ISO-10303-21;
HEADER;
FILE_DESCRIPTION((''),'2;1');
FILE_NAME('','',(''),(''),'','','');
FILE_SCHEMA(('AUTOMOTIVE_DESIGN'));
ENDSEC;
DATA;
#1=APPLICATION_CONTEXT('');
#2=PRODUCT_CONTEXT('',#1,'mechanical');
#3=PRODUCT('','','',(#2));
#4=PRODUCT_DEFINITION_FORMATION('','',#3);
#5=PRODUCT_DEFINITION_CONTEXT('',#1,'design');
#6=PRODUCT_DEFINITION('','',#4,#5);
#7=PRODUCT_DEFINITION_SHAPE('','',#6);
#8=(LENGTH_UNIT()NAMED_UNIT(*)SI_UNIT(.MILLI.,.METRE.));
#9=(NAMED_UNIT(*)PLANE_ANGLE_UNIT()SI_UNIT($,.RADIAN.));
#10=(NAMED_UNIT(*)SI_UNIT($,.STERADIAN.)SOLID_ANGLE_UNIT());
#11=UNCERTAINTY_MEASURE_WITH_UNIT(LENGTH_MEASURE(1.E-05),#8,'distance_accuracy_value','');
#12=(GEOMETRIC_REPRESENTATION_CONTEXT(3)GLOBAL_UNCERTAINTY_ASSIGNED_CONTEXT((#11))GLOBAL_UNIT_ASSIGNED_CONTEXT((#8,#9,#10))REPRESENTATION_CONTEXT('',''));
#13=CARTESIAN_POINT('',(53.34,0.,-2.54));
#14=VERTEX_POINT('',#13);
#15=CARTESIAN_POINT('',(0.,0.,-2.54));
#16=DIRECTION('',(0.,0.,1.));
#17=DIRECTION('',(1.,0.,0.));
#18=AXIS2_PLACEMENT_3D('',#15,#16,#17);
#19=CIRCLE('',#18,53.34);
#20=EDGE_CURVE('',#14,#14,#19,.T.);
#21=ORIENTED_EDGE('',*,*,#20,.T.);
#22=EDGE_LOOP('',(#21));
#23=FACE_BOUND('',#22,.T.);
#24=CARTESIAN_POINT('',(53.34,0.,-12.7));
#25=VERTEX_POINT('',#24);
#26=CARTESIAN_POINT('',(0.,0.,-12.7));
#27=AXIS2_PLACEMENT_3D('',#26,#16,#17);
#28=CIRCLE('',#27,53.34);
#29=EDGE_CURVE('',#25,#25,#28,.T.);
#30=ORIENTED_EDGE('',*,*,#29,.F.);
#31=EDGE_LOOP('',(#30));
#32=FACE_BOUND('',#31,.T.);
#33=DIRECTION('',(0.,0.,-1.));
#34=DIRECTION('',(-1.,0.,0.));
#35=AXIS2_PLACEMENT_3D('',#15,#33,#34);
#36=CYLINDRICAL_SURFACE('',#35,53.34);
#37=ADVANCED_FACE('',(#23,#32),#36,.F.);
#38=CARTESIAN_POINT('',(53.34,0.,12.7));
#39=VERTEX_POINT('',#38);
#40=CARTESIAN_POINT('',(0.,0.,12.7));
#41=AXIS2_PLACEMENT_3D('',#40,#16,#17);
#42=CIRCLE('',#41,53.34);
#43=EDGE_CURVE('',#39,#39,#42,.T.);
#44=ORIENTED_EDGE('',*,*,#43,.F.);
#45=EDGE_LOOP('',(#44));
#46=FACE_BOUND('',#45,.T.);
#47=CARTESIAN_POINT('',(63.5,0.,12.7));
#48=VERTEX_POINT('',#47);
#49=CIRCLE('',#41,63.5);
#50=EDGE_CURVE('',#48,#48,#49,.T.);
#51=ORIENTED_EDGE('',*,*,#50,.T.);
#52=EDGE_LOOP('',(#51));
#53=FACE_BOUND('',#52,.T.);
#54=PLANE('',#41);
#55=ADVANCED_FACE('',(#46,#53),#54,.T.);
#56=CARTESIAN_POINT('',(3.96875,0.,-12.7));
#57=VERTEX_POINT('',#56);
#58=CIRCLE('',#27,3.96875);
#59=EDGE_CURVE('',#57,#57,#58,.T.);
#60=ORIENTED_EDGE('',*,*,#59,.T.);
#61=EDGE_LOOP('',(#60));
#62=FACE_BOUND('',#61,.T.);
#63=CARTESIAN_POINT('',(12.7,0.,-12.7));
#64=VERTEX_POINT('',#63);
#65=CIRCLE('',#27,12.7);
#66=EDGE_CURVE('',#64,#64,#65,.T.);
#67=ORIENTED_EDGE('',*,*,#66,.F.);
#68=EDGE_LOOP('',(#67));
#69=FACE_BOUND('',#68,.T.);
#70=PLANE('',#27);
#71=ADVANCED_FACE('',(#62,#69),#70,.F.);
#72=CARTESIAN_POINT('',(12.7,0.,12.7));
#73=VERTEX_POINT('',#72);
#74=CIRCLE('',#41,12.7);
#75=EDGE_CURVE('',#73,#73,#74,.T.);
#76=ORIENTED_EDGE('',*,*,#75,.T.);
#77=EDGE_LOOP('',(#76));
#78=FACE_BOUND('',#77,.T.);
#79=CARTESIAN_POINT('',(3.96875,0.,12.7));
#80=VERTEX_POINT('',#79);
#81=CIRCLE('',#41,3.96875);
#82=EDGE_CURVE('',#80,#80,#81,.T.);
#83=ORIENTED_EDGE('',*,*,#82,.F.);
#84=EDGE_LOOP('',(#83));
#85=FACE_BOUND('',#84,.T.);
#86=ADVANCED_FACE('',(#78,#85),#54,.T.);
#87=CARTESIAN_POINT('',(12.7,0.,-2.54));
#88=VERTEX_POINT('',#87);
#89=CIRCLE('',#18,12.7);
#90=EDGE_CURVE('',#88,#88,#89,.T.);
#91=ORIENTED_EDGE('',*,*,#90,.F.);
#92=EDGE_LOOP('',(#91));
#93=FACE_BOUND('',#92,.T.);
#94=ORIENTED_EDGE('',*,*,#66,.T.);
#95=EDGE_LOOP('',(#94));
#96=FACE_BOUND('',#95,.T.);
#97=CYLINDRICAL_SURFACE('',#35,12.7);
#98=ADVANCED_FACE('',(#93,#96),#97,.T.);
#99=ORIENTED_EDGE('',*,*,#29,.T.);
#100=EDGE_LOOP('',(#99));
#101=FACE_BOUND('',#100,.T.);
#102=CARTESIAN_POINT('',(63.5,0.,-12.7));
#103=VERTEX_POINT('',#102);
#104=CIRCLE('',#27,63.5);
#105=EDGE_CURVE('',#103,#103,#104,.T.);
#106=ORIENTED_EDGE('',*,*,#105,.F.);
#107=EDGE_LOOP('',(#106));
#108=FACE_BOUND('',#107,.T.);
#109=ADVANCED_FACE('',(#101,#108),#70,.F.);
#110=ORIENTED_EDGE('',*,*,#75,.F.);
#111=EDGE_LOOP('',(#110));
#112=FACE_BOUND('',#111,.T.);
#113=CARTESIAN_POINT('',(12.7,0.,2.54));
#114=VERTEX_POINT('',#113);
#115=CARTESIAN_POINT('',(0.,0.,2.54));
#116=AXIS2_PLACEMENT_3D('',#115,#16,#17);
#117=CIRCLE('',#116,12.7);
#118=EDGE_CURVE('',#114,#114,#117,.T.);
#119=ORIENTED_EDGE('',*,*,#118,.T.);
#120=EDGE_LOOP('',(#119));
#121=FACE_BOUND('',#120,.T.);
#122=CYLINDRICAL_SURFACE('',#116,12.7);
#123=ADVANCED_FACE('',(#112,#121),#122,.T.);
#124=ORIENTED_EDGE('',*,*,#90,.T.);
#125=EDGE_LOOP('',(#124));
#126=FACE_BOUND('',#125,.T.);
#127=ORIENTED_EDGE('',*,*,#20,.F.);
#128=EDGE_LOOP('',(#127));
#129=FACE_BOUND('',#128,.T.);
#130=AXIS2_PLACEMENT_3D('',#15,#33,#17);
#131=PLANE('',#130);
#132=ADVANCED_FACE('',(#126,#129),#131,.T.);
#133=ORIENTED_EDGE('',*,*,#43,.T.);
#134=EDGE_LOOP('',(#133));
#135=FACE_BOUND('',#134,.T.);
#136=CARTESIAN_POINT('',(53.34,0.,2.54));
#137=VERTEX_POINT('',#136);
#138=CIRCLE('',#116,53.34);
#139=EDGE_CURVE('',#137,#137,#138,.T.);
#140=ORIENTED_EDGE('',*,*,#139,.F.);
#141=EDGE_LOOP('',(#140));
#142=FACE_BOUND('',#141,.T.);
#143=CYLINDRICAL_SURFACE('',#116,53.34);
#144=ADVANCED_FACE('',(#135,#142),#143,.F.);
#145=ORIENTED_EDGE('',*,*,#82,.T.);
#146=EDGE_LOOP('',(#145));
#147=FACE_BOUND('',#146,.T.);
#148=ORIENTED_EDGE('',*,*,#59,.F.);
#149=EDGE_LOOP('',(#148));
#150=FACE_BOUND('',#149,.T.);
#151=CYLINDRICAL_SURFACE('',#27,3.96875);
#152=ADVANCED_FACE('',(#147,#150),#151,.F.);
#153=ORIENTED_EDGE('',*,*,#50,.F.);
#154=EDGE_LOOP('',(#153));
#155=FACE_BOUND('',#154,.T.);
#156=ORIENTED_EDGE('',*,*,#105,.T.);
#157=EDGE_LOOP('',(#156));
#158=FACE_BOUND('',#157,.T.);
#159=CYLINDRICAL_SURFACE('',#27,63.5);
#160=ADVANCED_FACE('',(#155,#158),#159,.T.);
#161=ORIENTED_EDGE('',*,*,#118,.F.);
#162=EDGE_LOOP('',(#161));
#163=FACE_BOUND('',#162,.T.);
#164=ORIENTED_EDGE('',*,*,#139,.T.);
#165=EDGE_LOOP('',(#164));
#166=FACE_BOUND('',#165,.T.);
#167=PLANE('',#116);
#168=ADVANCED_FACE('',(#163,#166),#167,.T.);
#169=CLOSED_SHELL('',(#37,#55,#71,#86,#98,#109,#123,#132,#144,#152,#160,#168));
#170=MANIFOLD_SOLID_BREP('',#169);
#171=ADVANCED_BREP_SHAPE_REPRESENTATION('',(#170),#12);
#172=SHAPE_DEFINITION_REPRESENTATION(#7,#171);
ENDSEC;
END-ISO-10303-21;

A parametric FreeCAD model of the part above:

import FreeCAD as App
import Part
import Sketcher
from FreeCAD import Vector
Q = App.Units.Quantity

doc = App.newDocument("Part")
body = doc.addObject("PartDesign::Body", "Body")

# Sketch on XY plane
sketch1 = body.newObject("Sketcher::SketchObject", "Sketch")
sketch1.AttachmentSupport = (doc.getObject("XY_Plane"), [""])
sketch1.MapMode = "FlatFace"
sketch1.addGeometry(Part.Circle(Vector(0, 0, 0), Vector(0, 0, 1), 63.5), False)
sketch1.addGeometry(Part.Circle(Vector(0, 0, 0), Vector(0, 0, 1), 4), False)
sketch1.addConstraint(Sketcher.Constraint("Coincident", 0, 3, -1, 1))
sketch1.addConstraint(Sketcher.Constraint("Coincident", 1, 3, -1, 1))
sketch1.addConstraint(Sketcher.Constraint("Diameter", 0, Q("5 in")))
sketch1.addConstraint(Sketcher.Constraint("Diameter", 1, Q("0.3125 in")))
pad1 = body.newObject("PartDesign::Pad", "Pad")
pad1.Profile = sketch1
pad1.Length = Q("1 in")
pad1.Midplane = True

# Sketch on XY plane
sketch2 = body.newObject("Sketcher::SketchObject", "Sketch001")
sketch2.AttachmentSupport = (doc.getObject("XY_Plane"), [""])
sketch2.MapMode = "FlatFace"
sketch2.AttachmentOffset = App.Placement(Vector(0, 0, 0.5 * 25.4), App.Rotation())
sketch2.addGeometry(Part.Circle(Vector(0, 0, 0), Vector(0, 0, 1), 53), False)
sketch2.addGeometry(Part.Circle(Vector(0, 0, 0), Vector(0, 0, 1), 13), False)
sketch2.addConstraint(Sketcher.Constraint("Coincident", 0, 3, -1, 1))
sketch2.addConstraint(Sketcher.Constraint("Coincident", 1, 3, -1, 1))
sketch2.addConstraint(Sketcher.Constraint("Diameter", 1, Q("1 in")))
sketch2.addConstraint(Sketcher.Constraint("Diameter", 0, Q("4.2 in")))
pocket1 = body.newObject("PartDesign::Pocket", "Pocket")
pocket1.Profile = sketch2
pocket1.Length = Q("0.4 in")
doc.recompute()

mirrored = body.newObject("PartDesign::Mirrored", "Mirrored")
mirrored.Originals = [pocket1]
mirrored.MirrorPlane = (doc.getObject("XY_Plane"), [""])
body.Tip = mirrored

doc.recompute()
